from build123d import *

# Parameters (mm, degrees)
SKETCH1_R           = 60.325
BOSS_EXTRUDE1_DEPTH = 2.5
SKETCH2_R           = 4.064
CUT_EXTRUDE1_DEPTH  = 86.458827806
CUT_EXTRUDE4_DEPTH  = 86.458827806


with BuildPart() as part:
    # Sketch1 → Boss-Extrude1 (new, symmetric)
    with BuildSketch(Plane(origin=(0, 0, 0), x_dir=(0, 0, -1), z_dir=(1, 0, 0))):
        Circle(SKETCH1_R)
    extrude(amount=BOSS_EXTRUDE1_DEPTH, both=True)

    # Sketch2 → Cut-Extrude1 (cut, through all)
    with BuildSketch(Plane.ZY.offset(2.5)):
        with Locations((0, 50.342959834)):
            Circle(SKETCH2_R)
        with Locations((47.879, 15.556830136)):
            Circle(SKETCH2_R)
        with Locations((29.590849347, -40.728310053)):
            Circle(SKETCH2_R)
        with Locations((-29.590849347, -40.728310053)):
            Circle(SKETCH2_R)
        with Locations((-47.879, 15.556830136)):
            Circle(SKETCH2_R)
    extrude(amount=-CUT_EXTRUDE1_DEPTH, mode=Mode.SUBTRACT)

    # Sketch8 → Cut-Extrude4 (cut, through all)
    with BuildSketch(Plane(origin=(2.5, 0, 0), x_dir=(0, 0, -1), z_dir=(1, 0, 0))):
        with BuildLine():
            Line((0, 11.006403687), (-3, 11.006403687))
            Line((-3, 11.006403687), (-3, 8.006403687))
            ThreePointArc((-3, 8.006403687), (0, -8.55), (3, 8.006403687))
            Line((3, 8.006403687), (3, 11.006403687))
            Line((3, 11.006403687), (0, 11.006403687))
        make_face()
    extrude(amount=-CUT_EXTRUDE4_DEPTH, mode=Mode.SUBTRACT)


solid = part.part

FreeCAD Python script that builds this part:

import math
import FreeCAD as App
import Part
import Sketcher
from FreeCAD import Vector

doc = App.newDocument("Part")
body = doc.addObject("PartDesign::Body", "Body")

# Sketch on YZ plane
sketch1 = body.newObject("Sketcher::SketchObject", "Sketch")
sketch1.AttachmentSupport = (doc.getObject("YZ_Plane"), [""])
sketch1.MapMode = "FlatFace"
sketch1.addGeometry(Part.Circle(Vector(0, 0, 0), Vector(0, 0, 1), 60.325), False)
sketch1.addConstraint(Sketcher.Constraint("Coincident", 0, 3, -1, 1))
sketch1.addConstraint(Sketcher.Constraint("Diameter", 0, 120.65))
pad1 = body.newObject("PartDesign::Pad", "Pad")
pad1.Profile = sketch1
pad1.Length = 5
pad1.Midplane = True

# Sketch on YZ plane
sketch2 = body.newObject("Sketcher::SketchObject", "Sketch001")
sketch2.AttachmentSupport = (doc.getObject("YZ_Plane"), [""])
sketch2.MapMode = "FlatFace"
sketch2.AttachmentOffset = App.Placement(Vector(0, 0, -2.5), App.Rotation())
sketch2.addGeometry(Part.Circle(Vector(50.34296, 0, 0), Vector(0, 0, 1), 4.064), False)
sketch2.addGeometry(Part.Circle(Vector(15.55683, 47.879, 0), Vector(0, 0, 1), 4.064), False)
sketch2.addGeometry(Part.Circle(Vector(-40.72831, 29.590849, 0), Vector(0, 0, 1), 4.064), False)
sketch2.addGeometry(Part.Circle(Vector(-40.72831, -29.590849, 0), Vector(0, 0, 1), 4.064), False)
sketch2.addGeometry(Part.Circle(Vector(15.55683, -47.879, 0), Vector(0, 0, 1), 4.064), False)
sketch2.addConstraint(Sketcher.Constraint("Equal", 0, 1))
sketch2.addConstraint(Sketcher.Constraint("Equal", 1, 2))
sketch2.addConstraint(Sketcher.Constraint("Equal", 2, 3))
sketch2.addConstraint(Sketcher.Constraint("Equal", 3, 4))
sketch2.addConstraint(Sketcher.Constraint("Symmetric", 2, 3, 3, 3, -1))
sketch2.addConstraint(Sketcher.Constraint("Symmetric", 1, 3, 4, 3, -1))
sketch2.addConstraint(Sketcher.Constraint("PointOnObject", 0, 3, -1))
sketch2.addConstraint(Sketcher.Constraint("Diameter", 0, 8.128))
sketch2.addConstraint(Sketcher.Constraint("DistanceY", -1, 1, 1, 3, 47.879))
sketch2.addConstraint(Sketcher.Constraint("DistanceY", 3, 3, 2, 3, 59.181699))
sketch2.addConstraint(Sketcher.Constraint("DistanceX", -1, 1, 0, 3, 50.34296))
sketch2.addConstraint(Sketcher.Constraint("DistanceX", -1, 1, 1, 3, 15.55683))
sketch2.addConstraint(Sketcher.Constraint("DistanceX", 2, 3, -1, 1, 40.72831))
pocket1 = body.newObject("PartDesign::Pocket", "Pocket")
pocket1.Profile = sketch2
pocket1.Type = "ThroughAll"
pocket1.Reversed = True

# Sketch on YZ plane
sketch3 = body.newObject("Sketcher::SketchObject", "Sketch002")
sketch3.AttachmentSupport = (doc.getObject("YZ_Plane"), [""])
sketch3.MapMode = "FlatFace"
sketch3.AttachmentOffset = App.Placement(Vector(0, 0, 2.5), App.Rotation())
sketch3.addGeometry(Part.LineSegment(Vector(11.006404, 3, 0), Vector(8.006404, 3, 0)), False)
sketch3.addGeometry(Part.ArcOfCircle(Part.Circle(Vector(0, 0, 0), Vector(0, 0, 1), 8.55), math.radians(20.540978), math.radians(339.459022)), False)
sketch3.addGeometry(Part.LineSegment(Vector(8.006404, -3, 0), Vector(11.006404, -3, 0)), False)
sketch3.addGeometry(Part.LineSegment(Vector(11.006404, -3, 0), Vector(11.006404, 3, 0)), False)
sketch3.addConstraint(Sketcher.Constraint("Coincident", 0, 2, 1, 1))
sketch3.addConstraint(Sketcher.Constraint("Coincident", 1, 2, 2, 1))
sketch3.addConstraint(Sketcher.Constraint("Coincident", 2, 2, 3, 1))
sketch3.addConstraint(Sketcher.Constraint("Coincident", 3, 2, 0, 1))
sketch3.addConstraint(Sketcher.Constraint("Horizontal", 0))
sketch3.addConstraint(Sketcher.Constraint("Horizontal", 2))
sketch3.addConstraint(Sketcher.Constraint("Vertical", 3))
sketch3.addConstraint(Sketcher.Constraint("Coincident", 1, 3, -1, 1))
sketch3.addConstraint(Sketcher.Constraint("Vertical", 0, 2, 1, 2))
sketch3.addConstraint(Sketcher.Constraint("DistanceX", 0, 2, 0, 1, 3.0))
sketch3.addConstraint(Sketcher.Constraint("DistanceY", 3, 1, 3, 2, 6.0))
sketch3.addConstraint(Sketcher.Constraint("Radius", 1, 8.55))
pocket2 = body.newObject("PartDesign::Pocket", "Pocket001")
pocket2.Profile = sketch3
pocket2.Type = "ThroughAll"

doc.recompute()
